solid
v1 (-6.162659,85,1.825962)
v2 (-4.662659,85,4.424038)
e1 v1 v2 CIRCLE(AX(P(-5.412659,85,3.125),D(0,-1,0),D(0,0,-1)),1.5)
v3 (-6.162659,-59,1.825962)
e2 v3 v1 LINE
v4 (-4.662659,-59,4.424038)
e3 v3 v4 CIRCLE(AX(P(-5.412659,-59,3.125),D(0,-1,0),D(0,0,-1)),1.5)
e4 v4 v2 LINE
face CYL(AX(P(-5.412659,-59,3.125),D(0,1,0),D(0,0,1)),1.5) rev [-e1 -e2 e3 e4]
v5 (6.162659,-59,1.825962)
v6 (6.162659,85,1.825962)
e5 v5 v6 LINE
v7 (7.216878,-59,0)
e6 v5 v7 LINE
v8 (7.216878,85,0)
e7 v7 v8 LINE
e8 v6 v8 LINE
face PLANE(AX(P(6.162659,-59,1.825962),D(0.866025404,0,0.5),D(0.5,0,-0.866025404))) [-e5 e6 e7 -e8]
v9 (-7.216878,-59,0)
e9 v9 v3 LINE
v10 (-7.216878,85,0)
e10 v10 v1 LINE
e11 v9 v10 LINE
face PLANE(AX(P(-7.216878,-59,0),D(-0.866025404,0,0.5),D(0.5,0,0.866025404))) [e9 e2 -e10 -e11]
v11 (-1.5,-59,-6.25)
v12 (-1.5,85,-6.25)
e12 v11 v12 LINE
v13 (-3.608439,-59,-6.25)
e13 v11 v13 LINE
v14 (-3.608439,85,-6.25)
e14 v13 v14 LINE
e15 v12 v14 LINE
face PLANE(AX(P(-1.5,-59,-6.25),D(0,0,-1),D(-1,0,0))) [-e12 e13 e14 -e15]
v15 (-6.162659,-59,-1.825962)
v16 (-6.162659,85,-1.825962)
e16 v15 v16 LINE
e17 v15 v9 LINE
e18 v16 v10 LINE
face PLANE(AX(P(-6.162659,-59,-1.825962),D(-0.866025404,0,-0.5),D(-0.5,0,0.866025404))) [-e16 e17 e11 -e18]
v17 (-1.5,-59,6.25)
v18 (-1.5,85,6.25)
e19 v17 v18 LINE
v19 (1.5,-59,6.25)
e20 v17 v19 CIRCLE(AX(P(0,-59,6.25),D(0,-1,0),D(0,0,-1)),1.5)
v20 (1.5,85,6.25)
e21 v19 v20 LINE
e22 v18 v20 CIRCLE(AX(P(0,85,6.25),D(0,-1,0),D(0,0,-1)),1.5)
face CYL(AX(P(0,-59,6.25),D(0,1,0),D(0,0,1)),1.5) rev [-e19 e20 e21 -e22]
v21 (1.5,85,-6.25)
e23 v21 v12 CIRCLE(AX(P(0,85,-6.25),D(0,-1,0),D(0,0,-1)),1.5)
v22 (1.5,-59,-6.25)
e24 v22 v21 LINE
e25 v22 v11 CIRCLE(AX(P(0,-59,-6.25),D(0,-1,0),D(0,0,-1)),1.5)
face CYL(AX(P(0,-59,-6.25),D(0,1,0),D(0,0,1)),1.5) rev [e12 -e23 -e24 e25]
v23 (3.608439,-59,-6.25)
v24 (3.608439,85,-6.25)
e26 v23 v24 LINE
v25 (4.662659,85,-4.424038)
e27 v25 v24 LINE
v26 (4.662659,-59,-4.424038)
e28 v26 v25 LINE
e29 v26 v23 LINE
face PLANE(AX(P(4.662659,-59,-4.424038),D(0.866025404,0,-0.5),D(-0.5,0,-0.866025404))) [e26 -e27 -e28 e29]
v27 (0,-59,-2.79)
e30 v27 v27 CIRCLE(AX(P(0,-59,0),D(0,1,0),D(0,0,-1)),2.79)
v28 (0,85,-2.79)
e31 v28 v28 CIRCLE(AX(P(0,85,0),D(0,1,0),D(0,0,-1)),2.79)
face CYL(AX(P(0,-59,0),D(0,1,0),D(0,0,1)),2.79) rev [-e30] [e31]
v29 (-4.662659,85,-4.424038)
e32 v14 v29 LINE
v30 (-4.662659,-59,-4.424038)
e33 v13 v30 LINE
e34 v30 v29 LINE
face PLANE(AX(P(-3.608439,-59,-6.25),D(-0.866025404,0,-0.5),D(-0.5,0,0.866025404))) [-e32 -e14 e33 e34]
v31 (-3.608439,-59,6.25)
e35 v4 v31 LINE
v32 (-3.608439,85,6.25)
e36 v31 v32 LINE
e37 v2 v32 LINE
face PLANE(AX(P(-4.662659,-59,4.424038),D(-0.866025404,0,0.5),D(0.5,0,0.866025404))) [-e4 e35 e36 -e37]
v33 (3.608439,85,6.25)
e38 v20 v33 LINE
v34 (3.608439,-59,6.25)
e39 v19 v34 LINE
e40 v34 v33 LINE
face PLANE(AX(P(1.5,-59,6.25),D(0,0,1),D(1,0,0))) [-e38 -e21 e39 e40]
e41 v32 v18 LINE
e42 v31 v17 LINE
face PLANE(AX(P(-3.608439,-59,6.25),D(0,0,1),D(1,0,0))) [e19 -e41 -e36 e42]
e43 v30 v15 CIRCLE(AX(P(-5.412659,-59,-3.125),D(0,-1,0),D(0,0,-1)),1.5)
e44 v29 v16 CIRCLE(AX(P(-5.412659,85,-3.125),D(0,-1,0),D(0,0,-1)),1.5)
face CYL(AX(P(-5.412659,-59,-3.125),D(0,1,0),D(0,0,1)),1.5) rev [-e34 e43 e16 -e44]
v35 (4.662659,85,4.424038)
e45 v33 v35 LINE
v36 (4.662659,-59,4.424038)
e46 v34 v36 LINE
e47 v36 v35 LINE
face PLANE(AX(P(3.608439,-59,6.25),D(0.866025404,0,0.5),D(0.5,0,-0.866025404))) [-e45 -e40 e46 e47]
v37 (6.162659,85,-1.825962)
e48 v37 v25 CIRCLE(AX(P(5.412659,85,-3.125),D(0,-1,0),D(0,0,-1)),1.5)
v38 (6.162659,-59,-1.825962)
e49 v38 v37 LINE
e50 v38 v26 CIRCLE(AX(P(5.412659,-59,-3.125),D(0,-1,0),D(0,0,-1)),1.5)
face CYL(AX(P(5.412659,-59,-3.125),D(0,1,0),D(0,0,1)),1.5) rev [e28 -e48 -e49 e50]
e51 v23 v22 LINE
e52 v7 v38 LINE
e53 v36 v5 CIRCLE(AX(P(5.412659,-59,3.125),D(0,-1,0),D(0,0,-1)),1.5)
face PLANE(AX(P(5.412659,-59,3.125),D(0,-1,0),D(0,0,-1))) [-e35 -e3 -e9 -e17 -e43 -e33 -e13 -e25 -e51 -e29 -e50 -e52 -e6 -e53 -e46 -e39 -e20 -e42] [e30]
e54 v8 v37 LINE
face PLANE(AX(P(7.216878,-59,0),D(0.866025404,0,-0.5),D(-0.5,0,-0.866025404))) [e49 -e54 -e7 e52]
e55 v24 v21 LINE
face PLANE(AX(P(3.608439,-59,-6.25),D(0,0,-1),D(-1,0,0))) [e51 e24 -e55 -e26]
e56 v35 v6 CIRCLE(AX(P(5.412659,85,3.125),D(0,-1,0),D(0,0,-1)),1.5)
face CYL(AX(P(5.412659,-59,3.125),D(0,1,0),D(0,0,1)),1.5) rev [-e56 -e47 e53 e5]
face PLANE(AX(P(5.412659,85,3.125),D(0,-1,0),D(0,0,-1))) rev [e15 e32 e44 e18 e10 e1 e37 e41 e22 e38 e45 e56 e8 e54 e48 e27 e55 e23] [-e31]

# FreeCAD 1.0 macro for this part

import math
import FreeCAD as App
import Part
import Sketcher
Q = App.Units.Quantity

doc = App.newDocument("Part")
body = doc.addObject("PartDesign::Body", "Body")

sketch1 = body.newObject("Sketcher::SketchObject", "Sketch")
sketch1.AttachmentSupport = (doc.getObject("XZ_Plane"), [""])
sketch1.MapMode = "FlatFace"
sketch1.AttachmentOffset = App.Placement(App.Vector(0, 0, -85), App.Rotation())
sketch1.addGeometry(Part.LineSegment(App.Vector(6.2, 1.8, 0), App.Vector(7.2, 0, 0)), False)
sketch1.addGeometry(Part.LineSegment(App.Vector(7.2, 0, 0), App.Vector(6.2, -1.8, 0)), False)
sketch1.addGeometry(Part.ArcOfCircle(Part.Circle(App.Vector(5.4, -3.1, 0), App.Vector(0, 0, 1), 1.5), math.radians(60), math.radians(240)), False)
sketch1.addGeometry(Part.LineSegment(App.Vector(4.7, -4.4, 0), App.Vector(3.6, -6.2, 0)), False)
sketch1.addGeometry(Part.LineSegment(App.Vector(3.6, -6.2, 0), App.Vector(1.5, -6.2, 0)), False)
sketch1.addGeometry(Part.ArcOfCircle(Part.Circle(App.Vector(0, -6.2, 0), App.Vector(0, 0, 1), 1.5), math.radians(0), math.radians(180)), False)
sketch1.addGeometry(Part.LineSegment(App.Vector(-1.5, -6.2, 0), App.Vector(-3.6, -6.2, 0)), False)
sketch1.addGeometry(Part.LineSegment(App.Vector(-3.6, -6.2, 0), App.Vector(-4.7, -4.4, 0)), False)
sketch1.addGeometry(Part.ArcOfCircle(Part.Circle(App.Vector(-5.4, -3.1, 0), App.Vector(0, 0, 1), 1.5), math.radians(-60), math.radians(120)), False)
sketch1.addGeometry(Part.LineSegment(App.Vector(-6.2, -1.8, 0), App.Vector(-7.2, 0, 0)), False)
sketch1.addGeometry(Part.LineSegment(App.Vector(-7.2, 0, 0), App.Vector(-6.2, 1.8, 0)), False)
sketch1.addGeometry(Part.ArcOfCircle(Part.Circle(App.Vector(-5.4, 3.1, 0), App.Vector(0, 0, 1), 1.5), math.radians(-120), math.radians(60)), False)
sketch1.addGeometry(Part.LineSegment(App.Vector(-4.7, 4.4, 0), App.Vector(-3.6, 6.2, 0)), False)
sketch1.addGeometry(Part.LineSegment(App.Vector(-3.6, 6.2, 0), App.Vector(-1.5, 6.2, 0)), False)
sketch1.addGeometry(Part.ArcOfCircle(Part.Circle(App.Vector(0, 6.2, 0), App.Vector(0, 0, 1), 1.5), math.radians(180), math.radians(360)), False)
sketch1.addGeometry(Part.LineSegment(App.Vector(1.5, 6.2, 0), App.Vector(3.6, 6.2, 0)), False)
sketch1.addGeometry(Part.LineSegment(App.Vector(3.6, 6.2, 0), App.Vector(4.7, 4.4, 0)), False)
sketch1.addGeometry(Part.ArcOfCircle(Part.Circle(App.Vector(5.4, 3.1, 0), App.Vector(0, 0, 1), 1.5), math.radians(120), math.radians(300)), False)
sketch1.addGeometry(Part.Circle(App.Vector(0, 0, 0), App.Vector(0, 0, 1), 2.8), False)
sketch1.addConstraint(Sketcher.Constraint("Coincident", 0, 2, 1, 1))
sketch1.addConstraint(Sketcher.Constraint("Coincident", 1, 2, 2, 1))
sketch1.addConstraint(Sketcher.Constraint("Coincident", 2, 2, 3, 1))
sketch1.addConstraint(Sketcher.Constraint("Coincident", 3, 2, 4, 1))
sketch1.addConstraint(Sketcher.Constraint("Coincident", 4, 2, 5, 1))
sketch1.addConstraint(Sketcher.Constraint("Coincident", 5, 2, 6, 1))
sketch1.addConstraint(Sketcher.Constraint("Coincident", 6, 2, 7, 1))
sketch1.addConstraint(Sketcher.Constraint("Coincident", 7, 2, 8, 1))
sketch1.addConstraint(Sketcher.Constraint("Coincident", 8, 2, 9, 1))
sketch1.addConstraint(Sketcher.Constraint("Coincident", 9, 2, 10, 1))
sketch1.addConstraint(Sketcher.Constraint("Coincident", 10, 2, 11, 1))
sketch1.addConstraint(Sketcher.Constraint("Coincident", 11, 2, 12, 1))
sketch1.addConstraint(Sketcher.Constraint("Coincident", 12, 2, 13, 1))
sketch1.addConstraint(Sketcher.Constraint("Coincident", 13, 2, 14, 1))
sketch1.addConstraint(Sketcher.Constraint("Coincident", 14, 2, 15, 1))
sketch1.addConstraint(Sketcher.Constraint("Coincident", 15, 2, 16, 1))
sketch1.addConstraint(Sketcher.Constraint("Coincident", 16, 2, 17, 1))
sketch1.addConstraint(Sketcher.Constraint("Coincident", 17, 2, 0, 1))
sketch1.addConstraint(Sketcher.Constraint("Horizontal", 4))
sketch1.addConstraint(Sketcher.Constraint("Horizontal", 6))
sketch1.addConstraint(Sketcher.Constraint("Horizontal", 13))
sketch1.addConstraint(Sketcher.Constraint("Horizontal", 15))
sketch1.addConstraint(Sketcher.Constraint("Coincident", 18, 3, -1, 1))
sketch1.addConstraint(Sketcher.Constraint("Equal", 2, 5))
sketch1.addConstraint(Sketcher.Constraint("Equal", 5, 8))
sketch1.addConstraint(Sketcher.Constraint("Equal", 8, 11))
sketch1.addConstraint(Sketcher.Constraint("Equal", 11, 14))
sketch1.addConstraint(Sketcher.Constraint("Equal", 14, 17))
sketch1.addConstraint(Sketcher.Constraint("Symmetric", 2, 3, 11, 3, -1, 1))
sketch1.addConstraint(Sketcher.Constraint("Symmetric", 5, 3, 14, 3, -1, 1))
sketch1.addConstraint(Sketcher.Constraint("Symmetric", 8, 3, 17, 3, -1, 1))
sketch1.addConstraint(Sketcher.Constraint("Symmetric", 0, 2, 9, 2, -1, 1))
sketch1.addConstraint(Sketcher.Constraint("Symmetric", 3, 2, 12, 2, -1, 1))
sketch1.addConstraint(Sketcher.Constraint("Symmetric", 6, 2, 15, 2, -1, 1))
sketch1.addConstraint(Sketcher.Constraint("Symmetric", 2, 3, 8, 3, -2))
sketch1.addConstraint(Sketcher.Constraint("Symmetric", 4, 2, 5, 2, -2))
sketch1.addConstraint(Sketcher.Constraint("PointOnObject", 0, 2, -1))
sketch1.addConstraint(Sketcher.Constraint("Parallel", 1, 3))
sketch1.addConstraint(Sketcher.Constraint("Parallel", 0, 7))
sketch1.addConstraint(Sketcher.Constraint("Parallel", 7, 9))
sketch1.addConstraint(Sketcher.Constraint("Parallel", 3, 10))
sketch1.addConstraint(Sketcher.Constraint("Parallel", 10, 12))
sketch1.addConstraint(Sketcher.Constraint("Parallel", 9, 16))
sketch1.addConstraint(Sketcher.Constraint("Horizontal", 5, 3, 3, 2))
sketch1.addConstraint(Sketcher.Constraint("Horizontal", 2, 2, 7, 2))
sketch1.addConstraint(Sketcher.Constraint("Horizontal", 1, 2, 8, 2))
sketch1.addConstraint(Sketcher.Constraint("Equal", 1, 3))
sketch1.addConstraint(Sketcher.Constraint("Radius", 2, 1.5))
sketch1.addConstraint(Sketcher.Constraint("Diameter", 18, 5.58))
sketch1.addConstraint(Sketcher.Constraint("Angle", 0, Q("-60 deg")))
sketch1.addConstraint(Sketcher.Constraint("DistanceY", 5, 3, 14, 3, 12.5))
sketch1.addConstraint(Sketcher.Constraint("DistanceX", 2, 2, 1, 2, 1.5))
sketch1.addConstraint(Sketcher.Constraint("DistanceY", 8, 3, 11, 3, 6.25))
sketch1.addConstraint(Sketcher.Constraint("DistanceX", 4, 2, 4, 1, 2.108439))
pad1 = body.newObject("PartDesign::Pad", "Pad")
pad1.Profile = sketch1
pad1.Length = 144

doc.recompute()
